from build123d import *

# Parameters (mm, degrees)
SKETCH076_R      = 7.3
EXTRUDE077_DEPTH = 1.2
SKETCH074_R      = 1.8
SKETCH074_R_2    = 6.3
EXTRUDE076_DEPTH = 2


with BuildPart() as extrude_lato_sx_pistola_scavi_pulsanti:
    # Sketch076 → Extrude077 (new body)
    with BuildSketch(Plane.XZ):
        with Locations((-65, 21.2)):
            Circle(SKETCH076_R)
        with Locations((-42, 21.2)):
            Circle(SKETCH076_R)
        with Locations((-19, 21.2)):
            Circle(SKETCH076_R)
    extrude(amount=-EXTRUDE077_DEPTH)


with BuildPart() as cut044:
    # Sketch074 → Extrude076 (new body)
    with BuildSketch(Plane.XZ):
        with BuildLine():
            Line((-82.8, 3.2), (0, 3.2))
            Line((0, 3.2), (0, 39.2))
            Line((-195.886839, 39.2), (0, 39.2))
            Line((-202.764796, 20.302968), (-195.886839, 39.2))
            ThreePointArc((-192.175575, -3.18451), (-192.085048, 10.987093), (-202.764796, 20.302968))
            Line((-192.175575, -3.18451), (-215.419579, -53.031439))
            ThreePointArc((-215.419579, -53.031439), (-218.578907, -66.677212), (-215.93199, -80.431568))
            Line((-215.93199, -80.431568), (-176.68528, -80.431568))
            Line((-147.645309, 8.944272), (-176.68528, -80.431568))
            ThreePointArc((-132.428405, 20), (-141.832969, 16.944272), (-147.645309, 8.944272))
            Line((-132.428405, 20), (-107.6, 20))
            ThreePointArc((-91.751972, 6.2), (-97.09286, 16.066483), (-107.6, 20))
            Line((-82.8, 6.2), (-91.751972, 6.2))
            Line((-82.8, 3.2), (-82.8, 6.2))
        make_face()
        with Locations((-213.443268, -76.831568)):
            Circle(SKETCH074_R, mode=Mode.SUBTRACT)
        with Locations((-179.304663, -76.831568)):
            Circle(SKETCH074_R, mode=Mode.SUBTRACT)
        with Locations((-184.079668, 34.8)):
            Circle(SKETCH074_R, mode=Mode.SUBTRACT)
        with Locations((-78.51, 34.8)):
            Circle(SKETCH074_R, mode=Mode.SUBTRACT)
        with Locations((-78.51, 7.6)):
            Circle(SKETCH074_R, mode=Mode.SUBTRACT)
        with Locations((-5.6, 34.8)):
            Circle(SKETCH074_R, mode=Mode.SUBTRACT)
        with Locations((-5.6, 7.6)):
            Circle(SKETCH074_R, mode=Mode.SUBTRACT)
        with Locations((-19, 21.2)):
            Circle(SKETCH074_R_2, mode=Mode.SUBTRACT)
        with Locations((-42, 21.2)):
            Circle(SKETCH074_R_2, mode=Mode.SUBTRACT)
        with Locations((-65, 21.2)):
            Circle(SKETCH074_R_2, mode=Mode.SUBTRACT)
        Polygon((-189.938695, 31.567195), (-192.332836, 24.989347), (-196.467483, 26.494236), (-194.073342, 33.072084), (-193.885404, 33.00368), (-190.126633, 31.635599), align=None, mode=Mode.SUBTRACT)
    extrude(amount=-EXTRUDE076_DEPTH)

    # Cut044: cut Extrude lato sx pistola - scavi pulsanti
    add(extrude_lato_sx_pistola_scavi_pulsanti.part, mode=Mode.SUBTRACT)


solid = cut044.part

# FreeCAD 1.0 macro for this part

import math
import FreeCAD as App
import Part
import Sketcher

V = App.Vector
Q = App.Units.Quantity


def add_polygon(sketch, points):
    """Adds a closed chain of lines whose ends are joined by coincident constraints."""
    first, n = sketch.GeometryCount, len(points)
    for a, b in zip(points, points[1:] + points[:1]):
        sketch.addGeometry(Part.LineSegment(App.Vector(*a, 0), App.Vector(*b, 0)), False)
    for i in range(n):
        sketch.addConstraint(Sketcher.Constraint("Coincident", first + i, 2, first + (i + 1) % n, 1))

doc = App.newDocument("Part")
body = doc.addObject("PartDesign::Body", "Body")
body.AllowCompound = True

# Sketch on XZ plane
sketch1 = doc.addObject("Sketcher::SketchObject", "Sketch")
body.addObject(sketch1)
sketch1.AttachmentSupport = (doc.XZ_Plane, [""])
sketch1.MapMode = "FlatFace"
sketch1.addGeometry([
    Part.Circle(V(-65, 21.2, 0), V(0, 0, 1), 7.3),
    Part.Circle(V(-42, 21.2, 0), V(0, 0, 1), 7.3),
    Part.Circle(V(-19, 21.2, 0), V(0, 0, 1), 7.3),
], False)
sketch1.addConstraint([
    Sketcher.Constraint("Equal", 0, 1),
    Sketcher.Constraint("Equal", 1, 2),
    Sketcher.Constraint("Horizontal", 0, 3, 1, 3),
    Sketcher.Constraint("Horizontal", 1, 3, 2, 3),
    Sketcher.Constraint("Diameter", 0, 14.6),
    Sketcher.Constraint("DistanceX", 0, 3, -1, 1, 65.0),
    Sketcher.Constraint("DistanceX", 1, 3, -1, 1, 42.0),
    Sketcher.Constraint("DistanceX", 2, 3, -1, 1, 19.0),
    Sketcher.Constraint("DistanceY", -1, 1, 0, 3, 21.2),
])
pad1 = doc.addObject("PartDesign::Pad", "Pad")
body.addObject(pad1)
pad1.Profile = sketch1
pad1.Length = 1.2
pad1.Reversed = True
body2 = doc.addObject("PartDesign::Body", "Body001")

# Sketch on XZ plane
sketch2 = doc.addObject("Sketcher::SketchObject", "Sketch001")
body2.addObject(sketch2)
sketch2.AttachmentSupport = (doc.getObject("XZ_Plane001"), [""])
sketch2.MapMode = "FlatFace"
sketch2.addGeometry(Part.LineSegment(V(-82.8, 3.2, 0), V(0, 3.2, 0)), False)  # 0
sketch2.addGeometry(Part.LineSegment(V(0, 3.2, 0), V(0, 39.2, 0)), False)  # 1
sketch2.addGeometry(Part.LineSegment(V(0, 39.2, 0), V(-195.886839, 39.2, 0)), False)  # 2
sketch2.addGeometry(Part.LineSegment(V(-195.886839, 39.2, 0), V(-202.764796, 20.302968, 0)), False)  # 3
sketch2.addGeometry(Part.ArcOfCircle(Part.Circle(V(-207.582806, 4.000001, 0), V(0, 0, 1), 16.999999), math.radians(-25.000003), math.radians(73.536028)), False)  # 4
sketch2.addGeometry(Part.LineSegment(V(-192.175575, -3.18451, 0), V(-215.419579, -53.031439, 0)), False)  # 5
sketch2.addGeometry(Part.ArcOfCircle(Part.Circle(V(-184.801502, -67.308885, 0), V(0, 0, 1), 33.783311), math.radians(154.999997), math.radians(202.857271)), False)  # 6
sketch2.addGeometry(Part.LineSegment(V(-215.93199, -80.431568, 0), V(-176.68528, -80.431568, 0)), False)  # 7
sketch2.addGeometry(Part.LineSegment(V(-176.68528, -80.431568, 0), V(-147.645309, 8.944272, 0)), False)  # 8
sketch2.addGeometry(Part.ArcOfCircle(Part.Circle(V(-132.428405, 4.000001, 0), V(0, 0, 1), 15.999999), math.radians(89.999999), math.radians(162.000002)), False)  # 9
sketch2.addGeometry(Part.LineSegment(V(-132.428405, 20, 0), V(-107.6, 20, 0)), False)  # 10
sketch2.addGeometry(Part.ArcOfCircle(Part.Circle(V(-107.6, 4.000001, 0), V(0, 0, 1), 15.999999), math.radians(7.903205), math.radians(90.000002)), False)  # 11
sketch2.addGeometry(Part.LineSegment(V(-91.751972, 6.2, 0), V(-82.8, 6.2, 0)), False)  # 12
sketch2.addGeometry(Part.LineSegment(V(-82.8, 6.2, 0), V(-82.8, 3.2, 0)), False)  # 13
sketch2.addGeometry(Part.Circle(V(-213.443268, -76.831568, 0), V(0, 0, 1), 1.8), False)  # 14
sketch2.addGeometry(Part.Circle(V(-179.304663, -76.831568, 0), V(0, 0, 1), 1.8), False)  # 15
add_polygon(sketch2, [(-190.126633, 31.635599), (-189.938695, 31.567195), (-192.332836, 24.989347), (-196.467483, 26.494236), (-194.073342, 33.072084), (-193.885404, 33.00368)])  # lines 16-21
sketch2.addGeometry(Part.Circle(V(-184.079668, 34.8, 0), V(0, 0, 1), 1.8), False)  # 22
sketch2.addGeometry(Part.Circle(V(-78.51, 7.6, 0), V(0, 0, 1), 1.8), False)  # 23
sketch2.addGeometry(Part.Circle(V(-5.6, 7.6, 0), V(0, 0, 1), 1.8), False)  # 24
sketch2.addGeometry(Part.Circle(V(-65, 21.2, 0), V(0, 0, 1), 6.3), False)  # 25
sketch2.addGeometry(Part.Circle(V(-78.51, 34.8, 0), V(0, 0, 1), 1.8), False)  # 26
sketch2.addGeometry(Part.Circle(V(-42, 21.2, 0), V(0, 0, 1), 6.3), False)  # 27
sketch2.addGeometry(Part.Circle(V(-19, 21.2, 0), V(0, 0, 1), 6.3), False)  # 28
sketch2.addGeometry(Part.Circle(V(-5.6, 34.8, 0), V(0, 0, 1), 1.8), False)  # 29
sketch2.addConstraint([
    Sketcher.Constraint("Coincident", 0, 2, 1, 1),
    Sketcher.Constraint("Coincident", 1, 2, 2, 1),
    Sketcher.Constraint("Coincident", 2, 2, 3, 1),
    Sketcher.Constraint("Coincident", 3, 2, 4, 2),
    Sketcher.Constraint("Tangent", 4, 1, 5, 1),
    Sketcher.Constraint("Tangent", 5, 2, 6, 1),
    Sketcher.Constraint("Coincident", 6, 2, 7, 1),
    Sketcher.Constraint("Coincident", 7, 2, 8, 1),
    Sketcher.Constraint("Tangent", 8, 2, 9, 2),
    Sketcher.Constraint("Tangent", 9, 1, 10, 1),
    Sketcher.Constraint("Tangent", 10, 2, 11, 2),
    Sketcher.Constraint("Coincident", 11, 1, 12, 1),
    Sketcher.Constraint("Coincident", 12, 2, 13, 1),
    Sketcher.Constraint("Coincident", 13, 2, 0, 1),
    Sketcher.Constraint("Horizontal", 0),
    Sketcher.Constraint("Vertical", 1),
    Sketcher.Constraint("Horizontal", 2),
    Sketcher.Constraint("Horizontal", 7),
    Sketcher.Constraint("Horizontal", 10),
    Sketcher.Constraint("Horizontal", 12),
    Sketcher.Constraint("Vertical", 13),
    Sketcher.Constraint("Equal", 9, 11),
    Sketcher.Constraint("Equal", 14, 15),
    Sketcher.Constraint("Equal", 15, 22),
    Sketcher.Constraint("Equal", 22, 23),
    Sketcher.Constraint("Equal", 23, 24),
    Sketcher.Constraint("Equal", 24, 26),
    Sketcher.Constraint("Equal", 25, 27),
    Sketcher.Constraint("Equal", 27, 28),
    Sketcher.Constraint("Equal", 26, 29),
    Sketcher.Constraint("PointOnObject", 0, 2, -2),
    Sketcher.Constraint("Perpendicular", 3, 16),
    Sketcher.Constraint("Perpendicular", 16, 17),
    Sketcher.Constraint("Perpendicular", 17, 18),
    Sketcher.Constraint("Perpendicular", 18, 19),
    Sketcher.Constraint("Perpendicular", 19, 20),
    Sketcher.Constraint("Parallel", 20, 21),
    Sketcher.Constraint("Horizontal", 4, 3, 9, 3),
    Sketcher.Constraint("Horizontal", 14, 3, 15, 3),
    Sketcher.Constraint("Horizontal", 23, 3, 24, 3),
    Sketcher.Constraint("Horizontal", 22, 3, 26, 3),
    Sketcher.Constraint("Horizontal", 25, 3, 27, 3),
    Sketcher.Constraint("Horizontal", 27, 3, 28, 3),
    Sketcher.Constraint("Horizontal", 26, 3, 29, 3),
    Sketcher.Constraint("Vertical", 23, 3, 26, 3),
    Sketcher.Constraint("Vertical", 24, 3, 29, 3),
    Sketcher.Constraint("Equal", 16, 20),
    Sketcher.Constraint("Radius", 4, 16.999999),
    Sketcher.Constraint("Radius", 9, 15.999999),
    Sketcher.Constraint("Diameter", 14, 3.6),
    Sketcher.Constraint("Diameter", 25, 12.6),
    Sketcher.Constraint("DistanceY", 1, 1, 1, 2, 36.0),
    Sketcher.Constraint("DistanceY", 13, 2, 13, 1, 3.0),
    Sketcher.Constraint("Angle", 3, Q("-110 deg")),
    Sketcher.Constraint("Angle", 5, Q("-114.999999 deg")),
    Sketcher.Constraint("Angle", 8, Q("72 deg")),
    Sketcher.Constraint("Distance", 5, 55.0),
    Sketcher.Constraint("Distance", 17, 7.0),
    Sketcher.Constraint("Distance", 21, 4.000001),
    Sketcher.Constraint("DistanceX", 0, 1, 0, 2, 82.8),
    Sketcher.Constraint("DistanceY", -1, 1, 4, 3, 4.000001),
    Sketcher.Constraint("DistanceX", 25, 3, -1, 1, 65.0),
    Sketcher.Constraint("DistanceX", 27, 3, -1, 1, 42.0),
    Sketcher.Constraint("DistanceX", 28, 3, -1, 1, 19.0),
    Sketcher.Constraint("DistanceX", 11, 3, 24, 3, 102.0),
    Sketcher.Constraint("DistanceY", 0, 2, 28, 3, 18.0),
    Sketcher.Constraint("Distance", 16, 0.199999),
    Sketcher.Constraint("DistanceX", 11, 3, -1, 1, 107.6),
    Sketcher.Constraint("DistanceY", -1, 1, 22, 3, 34.8),
    Sketcher.Constraint("DistanceY", -1, 1, 23, 3, 7.6),
    Sketcher.Constraint("DistanceY", -1, 1, 25, 3, 21.2),
    Sketcher.Constraint("DistanceY", 6, 2, 14, 3, 3.6),
    Sketcher.Constraint("DistanceX", 23, 3, -1, 1, 78.51),
    Sketcher.Constraint("Radius", 6, 33.783311),
    Sketcher.Constraint("Distance", 3, 20.109801),
    Sketcher.Constraint("DistanceX", 2, 2, 2, 1, 195.886839),
    Sketcher.Constraint("DistanceX", 7, 1, 7, 2, 39.24671),
    Sketcher.Constraint("DistanceY", -1, 1, 21, 2, 31.635599),
    Sketcher.Constraint("DistanceX", 4, 3, 9, 3, 75.154401),
    Sketcher.Constraint("DistanceX", 3, 2, 16, 2, 12.826101),
    Sketcher.Constraint("DistanceX", 22, 3, -1, 1, 184.079668),
    Sketcher.Constraint("DistanceX", 14, 3, 4, 3, 5.860462),
    Sketcher.Constraint("DistanceX", 6, 3, 15, 3, 5.496839),
])
pad2 = doc.addObject("PartDesign::Pad", "Pad001")
body2.addObject(pad2)
pad2.Profile = sketch2
pad2.Length = 2
pad2.Reversed = True
doc.recompute()

boolean = doc.addObject("PartDesign::Boolean", "Boolean")
body2.addObject(boolean)
boolean.Type = "Cut"
boolean.addObjects([body])

doc.recompute()
